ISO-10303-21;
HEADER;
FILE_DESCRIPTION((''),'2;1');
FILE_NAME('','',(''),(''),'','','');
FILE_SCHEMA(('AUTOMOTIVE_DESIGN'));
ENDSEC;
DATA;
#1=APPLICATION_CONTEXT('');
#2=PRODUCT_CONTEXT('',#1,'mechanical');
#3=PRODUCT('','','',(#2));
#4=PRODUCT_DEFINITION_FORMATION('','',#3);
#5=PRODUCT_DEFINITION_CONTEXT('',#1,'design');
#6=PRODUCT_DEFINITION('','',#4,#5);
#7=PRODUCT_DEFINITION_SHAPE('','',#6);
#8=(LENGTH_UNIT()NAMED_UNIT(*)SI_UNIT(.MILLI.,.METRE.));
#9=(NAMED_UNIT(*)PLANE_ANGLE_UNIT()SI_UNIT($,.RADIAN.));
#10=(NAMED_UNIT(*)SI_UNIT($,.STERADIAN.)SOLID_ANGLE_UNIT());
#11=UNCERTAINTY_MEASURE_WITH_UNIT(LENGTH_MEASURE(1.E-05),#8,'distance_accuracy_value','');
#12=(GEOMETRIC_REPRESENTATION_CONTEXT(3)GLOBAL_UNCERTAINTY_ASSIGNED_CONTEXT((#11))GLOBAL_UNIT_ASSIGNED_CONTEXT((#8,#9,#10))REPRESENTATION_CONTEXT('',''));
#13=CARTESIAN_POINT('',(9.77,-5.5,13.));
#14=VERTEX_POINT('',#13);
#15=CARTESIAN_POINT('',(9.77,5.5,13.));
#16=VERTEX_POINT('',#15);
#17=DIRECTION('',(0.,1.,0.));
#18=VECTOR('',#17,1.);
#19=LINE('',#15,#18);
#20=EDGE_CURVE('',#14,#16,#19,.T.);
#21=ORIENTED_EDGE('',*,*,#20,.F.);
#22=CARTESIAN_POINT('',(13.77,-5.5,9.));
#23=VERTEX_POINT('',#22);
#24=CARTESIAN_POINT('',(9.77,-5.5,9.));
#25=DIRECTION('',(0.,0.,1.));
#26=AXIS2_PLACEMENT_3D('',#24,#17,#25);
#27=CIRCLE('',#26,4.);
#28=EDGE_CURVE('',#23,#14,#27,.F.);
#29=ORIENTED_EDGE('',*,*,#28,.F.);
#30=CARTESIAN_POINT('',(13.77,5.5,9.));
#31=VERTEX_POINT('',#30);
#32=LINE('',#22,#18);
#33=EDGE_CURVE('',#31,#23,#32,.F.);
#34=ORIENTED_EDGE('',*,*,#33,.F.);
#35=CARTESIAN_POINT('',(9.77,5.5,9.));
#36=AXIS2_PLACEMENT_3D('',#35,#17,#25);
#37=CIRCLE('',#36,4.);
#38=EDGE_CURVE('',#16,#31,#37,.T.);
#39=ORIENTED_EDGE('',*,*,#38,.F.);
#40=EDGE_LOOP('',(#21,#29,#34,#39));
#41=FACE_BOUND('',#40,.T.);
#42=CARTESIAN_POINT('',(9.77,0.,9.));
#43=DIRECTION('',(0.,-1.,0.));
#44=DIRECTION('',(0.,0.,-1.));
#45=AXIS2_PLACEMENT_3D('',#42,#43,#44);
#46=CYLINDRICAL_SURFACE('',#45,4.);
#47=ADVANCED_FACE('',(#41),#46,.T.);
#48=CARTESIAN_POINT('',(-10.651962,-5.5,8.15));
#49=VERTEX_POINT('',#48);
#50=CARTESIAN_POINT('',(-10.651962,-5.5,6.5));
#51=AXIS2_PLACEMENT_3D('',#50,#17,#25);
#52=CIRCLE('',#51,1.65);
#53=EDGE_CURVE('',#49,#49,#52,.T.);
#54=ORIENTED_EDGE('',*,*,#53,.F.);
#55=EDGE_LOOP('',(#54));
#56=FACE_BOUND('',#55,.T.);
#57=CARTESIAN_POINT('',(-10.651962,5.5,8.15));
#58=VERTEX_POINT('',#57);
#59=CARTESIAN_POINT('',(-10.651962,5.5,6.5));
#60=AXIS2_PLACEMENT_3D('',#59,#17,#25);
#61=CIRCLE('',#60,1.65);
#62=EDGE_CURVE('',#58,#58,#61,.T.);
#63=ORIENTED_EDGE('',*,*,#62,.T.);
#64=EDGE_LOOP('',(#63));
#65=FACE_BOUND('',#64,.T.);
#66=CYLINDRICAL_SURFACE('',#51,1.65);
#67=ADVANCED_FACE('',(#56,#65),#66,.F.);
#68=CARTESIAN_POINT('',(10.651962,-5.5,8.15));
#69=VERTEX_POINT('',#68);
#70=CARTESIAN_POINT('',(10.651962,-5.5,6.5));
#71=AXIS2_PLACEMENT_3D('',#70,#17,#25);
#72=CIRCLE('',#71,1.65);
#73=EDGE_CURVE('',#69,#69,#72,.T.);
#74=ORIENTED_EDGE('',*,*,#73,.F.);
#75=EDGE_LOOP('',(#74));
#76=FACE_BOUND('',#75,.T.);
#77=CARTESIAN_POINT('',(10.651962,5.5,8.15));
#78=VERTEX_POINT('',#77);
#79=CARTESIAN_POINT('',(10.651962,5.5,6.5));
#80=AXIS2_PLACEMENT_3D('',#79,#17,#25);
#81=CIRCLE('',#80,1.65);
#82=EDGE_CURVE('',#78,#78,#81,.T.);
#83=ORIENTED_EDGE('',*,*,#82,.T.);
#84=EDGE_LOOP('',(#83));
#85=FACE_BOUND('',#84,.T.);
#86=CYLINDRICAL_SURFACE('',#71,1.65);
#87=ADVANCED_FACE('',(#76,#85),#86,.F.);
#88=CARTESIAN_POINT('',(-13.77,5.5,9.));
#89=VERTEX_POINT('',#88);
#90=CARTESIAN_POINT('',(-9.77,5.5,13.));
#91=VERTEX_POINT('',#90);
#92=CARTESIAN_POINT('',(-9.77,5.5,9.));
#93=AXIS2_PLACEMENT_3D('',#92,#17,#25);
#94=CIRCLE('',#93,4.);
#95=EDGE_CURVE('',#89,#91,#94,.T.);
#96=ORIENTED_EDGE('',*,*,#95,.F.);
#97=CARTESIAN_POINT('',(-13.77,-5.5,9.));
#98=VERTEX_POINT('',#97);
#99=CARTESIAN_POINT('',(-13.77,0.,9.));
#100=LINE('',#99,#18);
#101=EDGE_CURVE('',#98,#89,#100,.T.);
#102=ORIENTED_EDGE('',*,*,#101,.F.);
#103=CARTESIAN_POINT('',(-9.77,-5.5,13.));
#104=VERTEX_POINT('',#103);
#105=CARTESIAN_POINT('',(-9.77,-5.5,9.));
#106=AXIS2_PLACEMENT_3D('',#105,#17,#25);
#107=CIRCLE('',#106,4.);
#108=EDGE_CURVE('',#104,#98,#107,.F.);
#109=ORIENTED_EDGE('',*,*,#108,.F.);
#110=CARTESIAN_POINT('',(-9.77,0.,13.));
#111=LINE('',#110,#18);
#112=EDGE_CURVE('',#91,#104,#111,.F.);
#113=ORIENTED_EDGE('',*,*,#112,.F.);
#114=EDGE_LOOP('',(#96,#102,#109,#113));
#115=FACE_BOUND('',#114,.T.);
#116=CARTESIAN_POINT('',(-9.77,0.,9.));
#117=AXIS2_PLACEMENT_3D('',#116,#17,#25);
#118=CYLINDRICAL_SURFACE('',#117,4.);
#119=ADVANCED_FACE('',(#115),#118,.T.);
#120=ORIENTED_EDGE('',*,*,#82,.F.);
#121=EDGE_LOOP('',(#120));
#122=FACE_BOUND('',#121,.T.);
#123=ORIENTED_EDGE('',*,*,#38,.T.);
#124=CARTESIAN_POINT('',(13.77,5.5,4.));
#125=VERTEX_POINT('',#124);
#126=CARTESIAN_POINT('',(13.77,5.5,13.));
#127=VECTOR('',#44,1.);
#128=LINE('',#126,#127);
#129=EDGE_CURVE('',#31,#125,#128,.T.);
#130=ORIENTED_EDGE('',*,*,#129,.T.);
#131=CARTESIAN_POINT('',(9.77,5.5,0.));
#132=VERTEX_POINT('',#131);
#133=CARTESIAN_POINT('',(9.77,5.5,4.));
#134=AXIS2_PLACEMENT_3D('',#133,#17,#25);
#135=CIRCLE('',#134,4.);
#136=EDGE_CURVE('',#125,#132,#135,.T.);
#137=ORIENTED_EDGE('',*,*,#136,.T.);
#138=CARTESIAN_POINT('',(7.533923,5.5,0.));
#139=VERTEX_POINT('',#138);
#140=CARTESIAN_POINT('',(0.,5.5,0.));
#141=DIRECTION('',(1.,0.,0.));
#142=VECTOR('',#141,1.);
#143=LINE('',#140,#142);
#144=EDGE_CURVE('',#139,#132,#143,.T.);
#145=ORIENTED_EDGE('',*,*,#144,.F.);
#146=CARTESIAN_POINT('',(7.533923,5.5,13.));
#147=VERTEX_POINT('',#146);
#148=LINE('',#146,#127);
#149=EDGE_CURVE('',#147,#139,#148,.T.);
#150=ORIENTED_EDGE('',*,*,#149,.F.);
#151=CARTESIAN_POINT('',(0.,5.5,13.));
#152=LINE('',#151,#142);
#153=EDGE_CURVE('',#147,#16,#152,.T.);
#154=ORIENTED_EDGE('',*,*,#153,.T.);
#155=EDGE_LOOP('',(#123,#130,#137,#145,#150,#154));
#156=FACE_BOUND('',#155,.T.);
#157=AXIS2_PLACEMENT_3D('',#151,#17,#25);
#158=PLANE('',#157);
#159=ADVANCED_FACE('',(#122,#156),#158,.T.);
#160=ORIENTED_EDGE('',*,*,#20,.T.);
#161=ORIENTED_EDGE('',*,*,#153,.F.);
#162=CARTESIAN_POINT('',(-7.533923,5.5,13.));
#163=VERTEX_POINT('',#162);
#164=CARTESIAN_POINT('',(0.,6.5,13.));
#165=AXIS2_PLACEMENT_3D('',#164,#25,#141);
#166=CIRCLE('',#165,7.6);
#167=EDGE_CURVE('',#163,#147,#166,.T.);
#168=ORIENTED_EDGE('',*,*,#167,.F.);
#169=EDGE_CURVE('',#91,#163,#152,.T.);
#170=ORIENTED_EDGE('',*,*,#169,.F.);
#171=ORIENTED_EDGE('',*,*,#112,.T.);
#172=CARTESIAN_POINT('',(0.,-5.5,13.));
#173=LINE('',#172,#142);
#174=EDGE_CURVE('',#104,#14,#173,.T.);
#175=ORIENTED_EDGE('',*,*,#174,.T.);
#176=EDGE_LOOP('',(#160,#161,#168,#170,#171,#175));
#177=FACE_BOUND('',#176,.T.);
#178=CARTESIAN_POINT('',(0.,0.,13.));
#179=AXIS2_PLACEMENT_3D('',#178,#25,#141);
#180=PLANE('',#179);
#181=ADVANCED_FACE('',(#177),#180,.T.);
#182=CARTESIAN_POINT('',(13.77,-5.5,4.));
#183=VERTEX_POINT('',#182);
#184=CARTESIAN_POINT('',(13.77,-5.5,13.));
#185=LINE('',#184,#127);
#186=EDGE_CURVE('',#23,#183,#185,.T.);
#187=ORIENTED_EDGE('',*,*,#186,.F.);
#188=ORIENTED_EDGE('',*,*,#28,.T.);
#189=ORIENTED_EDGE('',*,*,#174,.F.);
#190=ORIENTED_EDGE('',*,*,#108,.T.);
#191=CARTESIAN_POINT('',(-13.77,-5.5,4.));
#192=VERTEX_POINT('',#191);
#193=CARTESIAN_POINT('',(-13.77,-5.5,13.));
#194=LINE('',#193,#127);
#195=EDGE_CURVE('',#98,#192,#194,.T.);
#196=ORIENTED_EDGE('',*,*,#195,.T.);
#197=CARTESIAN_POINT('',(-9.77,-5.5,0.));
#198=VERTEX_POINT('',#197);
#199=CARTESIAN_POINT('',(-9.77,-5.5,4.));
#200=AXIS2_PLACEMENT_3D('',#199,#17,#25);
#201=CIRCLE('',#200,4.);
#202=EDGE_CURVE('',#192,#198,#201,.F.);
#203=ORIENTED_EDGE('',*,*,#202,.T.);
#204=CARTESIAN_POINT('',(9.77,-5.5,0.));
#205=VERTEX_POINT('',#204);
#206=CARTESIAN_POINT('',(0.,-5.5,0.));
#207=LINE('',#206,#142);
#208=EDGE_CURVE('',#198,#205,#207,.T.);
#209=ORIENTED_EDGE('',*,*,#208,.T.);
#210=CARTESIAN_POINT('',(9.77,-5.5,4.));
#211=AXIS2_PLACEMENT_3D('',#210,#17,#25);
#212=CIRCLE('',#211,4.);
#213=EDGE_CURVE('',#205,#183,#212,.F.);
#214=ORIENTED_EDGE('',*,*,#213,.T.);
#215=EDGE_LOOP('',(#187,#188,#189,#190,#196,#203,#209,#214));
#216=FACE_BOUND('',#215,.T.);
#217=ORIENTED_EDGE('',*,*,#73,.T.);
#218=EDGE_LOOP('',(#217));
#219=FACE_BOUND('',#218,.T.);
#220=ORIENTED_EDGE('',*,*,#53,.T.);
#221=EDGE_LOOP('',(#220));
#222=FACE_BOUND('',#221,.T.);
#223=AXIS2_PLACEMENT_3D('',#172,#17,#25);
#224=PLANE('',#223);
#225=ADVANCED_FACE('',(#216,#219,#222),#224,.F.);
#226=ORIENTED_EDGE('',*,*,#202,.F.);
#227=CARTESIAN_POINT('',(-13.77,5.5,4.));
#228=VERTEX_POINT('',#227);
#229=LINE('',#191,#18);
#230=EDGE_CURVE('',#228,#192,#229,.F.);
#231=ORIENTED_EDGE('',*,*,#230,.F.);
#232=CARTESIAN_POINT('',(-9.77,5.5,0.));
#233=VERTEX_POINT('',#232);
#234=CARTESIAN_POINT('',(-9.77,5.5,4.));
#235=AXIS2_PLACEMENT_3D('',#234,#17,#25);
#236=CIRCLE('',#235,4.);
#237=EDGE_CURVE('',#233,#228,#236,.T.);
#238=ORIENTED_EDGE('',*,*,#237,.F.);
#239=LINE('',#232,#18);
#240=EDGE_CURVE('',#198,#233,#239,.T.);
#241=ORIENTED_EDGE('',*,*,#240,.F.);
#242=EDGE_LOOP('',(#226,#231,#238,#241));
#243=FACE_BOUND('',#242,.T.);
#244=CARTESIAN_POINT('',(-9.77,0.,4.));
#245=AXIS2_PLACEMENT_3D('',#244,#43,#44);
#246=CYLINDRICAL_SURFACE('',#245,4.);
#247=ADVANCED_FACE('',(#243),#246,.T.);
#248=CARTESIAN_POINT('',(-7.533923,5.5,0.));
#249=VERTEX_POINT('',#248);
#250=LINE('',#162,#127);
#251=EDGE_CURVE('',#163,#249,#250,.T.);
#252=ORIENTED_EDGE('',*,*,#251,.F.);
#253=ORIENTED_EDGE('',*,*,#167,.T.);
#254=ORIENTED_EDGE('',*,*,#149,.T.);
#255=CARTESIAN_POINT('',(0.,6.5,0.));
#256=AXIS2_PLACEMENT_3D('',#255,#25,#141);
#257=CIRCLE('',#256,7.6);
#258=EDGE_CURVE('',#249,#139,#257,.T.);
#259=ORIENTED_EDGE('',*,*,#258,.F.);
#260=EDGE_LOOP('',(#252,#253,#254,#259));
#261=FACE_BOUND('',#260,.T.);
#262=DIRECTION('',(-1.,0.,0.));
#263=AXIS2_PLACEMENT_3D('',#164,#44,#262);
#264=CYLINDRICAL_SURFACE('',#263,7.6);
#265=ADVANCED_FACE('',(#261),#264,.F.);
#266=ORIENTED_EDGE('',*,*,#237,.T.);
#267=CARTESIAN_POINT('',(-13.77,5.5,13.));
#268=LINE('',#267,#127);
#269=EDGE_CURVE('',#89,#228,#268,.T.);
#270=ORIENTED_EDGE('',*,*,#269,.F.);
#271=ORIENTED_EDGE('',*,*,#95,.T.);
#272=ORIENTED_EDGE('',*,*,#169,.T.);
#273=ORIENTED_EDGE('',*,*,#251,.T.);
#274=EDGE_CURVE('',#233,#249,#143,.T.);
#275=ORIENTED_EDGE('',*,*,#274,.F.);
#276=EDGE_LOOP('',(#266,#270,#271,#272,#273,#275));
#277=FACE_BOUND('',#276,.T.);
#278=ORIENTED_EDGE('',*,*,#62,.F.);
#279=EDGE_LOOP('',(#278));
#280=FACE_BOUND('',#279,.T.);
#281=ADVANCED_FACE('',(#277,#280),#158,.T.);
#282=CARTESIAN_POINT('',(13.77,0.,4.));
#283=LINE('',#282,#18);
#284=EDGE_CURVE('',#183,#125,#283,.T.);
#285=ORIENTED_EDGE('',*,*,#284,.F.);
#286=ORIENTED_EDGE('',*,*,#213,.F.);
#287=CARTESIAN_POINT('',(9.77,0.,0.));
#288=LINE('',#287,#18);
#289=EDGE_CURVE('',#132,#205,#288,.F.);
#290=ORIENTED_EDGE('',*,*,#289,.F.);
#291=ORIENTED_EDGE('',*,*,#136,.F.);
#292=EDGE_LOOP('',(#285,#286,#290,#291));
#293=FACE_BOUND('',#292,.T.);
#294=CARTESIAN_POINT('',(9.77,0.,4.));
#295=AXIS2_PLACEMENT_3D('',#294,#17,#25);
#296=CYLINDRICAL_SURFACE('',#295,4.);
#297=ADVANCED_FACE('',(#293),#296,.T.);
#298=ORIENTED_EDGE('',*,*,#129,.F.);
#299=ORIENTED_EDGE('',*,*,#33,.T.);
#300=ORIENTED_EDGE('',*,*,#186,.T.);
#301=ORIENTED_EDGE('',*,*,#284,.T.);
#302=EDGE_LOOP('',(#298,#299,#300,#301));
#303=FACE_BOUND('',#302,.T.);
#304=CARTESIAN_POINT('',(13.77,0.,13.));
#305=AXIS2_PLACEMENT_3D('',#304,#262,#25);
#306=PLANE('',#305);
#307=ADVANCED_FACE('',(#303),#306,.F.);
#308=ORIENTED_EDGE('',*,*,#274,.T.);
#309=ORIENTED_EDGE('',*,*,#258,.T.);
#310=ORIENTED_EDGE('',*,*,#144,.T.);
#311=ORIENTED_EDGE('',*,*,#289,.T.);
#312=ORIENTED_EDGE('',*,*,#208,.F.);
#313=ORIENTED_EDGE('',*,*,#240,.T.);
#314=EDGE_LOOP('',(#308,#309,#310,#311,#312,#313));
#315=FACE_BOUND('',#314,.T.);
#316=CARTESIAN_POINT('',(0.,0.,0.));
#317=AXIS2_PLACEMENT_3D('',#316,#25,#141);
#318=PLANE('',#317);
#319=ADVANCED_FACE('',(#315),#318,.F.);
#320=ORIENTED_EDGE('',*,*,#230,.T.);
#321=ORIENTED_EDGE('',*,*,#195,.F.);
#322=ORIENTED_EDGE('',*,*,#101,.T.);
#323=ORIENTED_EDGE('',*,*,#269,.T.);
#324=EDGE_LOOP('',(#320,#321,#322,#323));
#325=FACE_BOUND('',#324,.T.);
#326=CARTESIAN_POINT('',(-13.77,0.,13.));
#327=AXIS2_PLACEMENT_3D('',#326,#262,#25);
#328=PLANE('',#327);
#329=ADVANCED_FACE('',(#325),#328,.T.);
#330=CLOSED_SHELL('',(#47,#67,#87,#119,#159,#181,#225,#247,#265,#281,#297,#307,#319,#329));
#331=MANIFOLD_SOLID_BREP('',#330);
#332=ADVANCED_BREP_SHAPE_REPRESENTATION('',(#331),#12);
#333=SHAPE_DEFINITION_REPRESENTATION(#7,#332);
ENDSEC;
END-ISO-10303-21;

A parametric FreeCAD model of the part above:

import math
import FreeCAD as App
import Part
import Sketcher

V = App.Vector
Q = App.Units.Quantity


def edges_at(feature, points):
    """Names of the edges that pass closest to the given points."""
    edges = feature.Shape.Edges
    near = lambda p: min(range(len(edges)), key=lambda i: edges[i].distToShape(Part.Vertex(*p))[0])
    return sorted({f"Edge{near(p) + 1}" for p in points})

doc = App.newDocument("Part")
body = doc.addObject("PartDesign::Body", "Body")

# Sketch on XY plane
sketch1 = body.newObject("Sketcher::SketchObject", "Sketch")
sketch1.AttachmentSupport = (doc.getObject("XY_Plane"), [""])
sketch1.MapMode = "FlatFace"
sketch1.addGeometry([
    Part.LineSegment(V(-13.77, 5.5, 0), V(-13.77, -5.5, 0)),  # 0
    Part.LineSegment(V(-13.77, -5.5, 0), V(13.77, -5.5, 0)),  # 1
    Part.LineSegment(V(13.77, -5.5, 0), V(13.77, 5.5, 0)),  # 2
    Part.LineSegment(V(13.77, 5.5, 0), V(7.533923, 5.5, 0)),  # 3
    Part.ArcOfCircle(Part.Circle(V(0, 6.5, 0), V(0, 0, 1), 7.6), math.radians(-172.439157), math.radians(-7.560843)),  # 4
    Part.LineSegment(V(-7.533923, 5.5, 0), V(-13.77, 5.5, 0)),  # 5
], False)
sketch1.addConstraint([
    Sketcher.Constraint("Coincident", 0, 2, 1, 1),
    Sketcher.Constraint("Coincident", 1, 2, 2, 1),
    Sketcher.Constraint("Coincident", 2, 2, 3, 1),
    Sketcher.Constraint("Coincident", 3, 2, 4, 2),
    Sketcher.Constraint("Coincident", 4, 1, 5, 1),
    Sketcher.Constraint("Coincident", 5, 2, 0, 1),
    Sketcher.Constraint("Vertical", 0),
    Sketcher.Constraint("Horizontal", 1),
    Sketcher.Constraint("Vertical", 2),
    Sketcher.Constraint("Horizontal", 3),
    Sketcher.Constraint("Horizontal", 5),
    Sketcher.Constraint("Symmetric", 0, 2, 2, 2, -1, 1),
    Sketcher.Constraint("Symmetric", 3, 2, 4, 1, -2),
    Sketcher.Constraint("Radius", 4, Q("7.6 mm")),
    Sketcher.Constraint("DistanceY", 0, 2, 0, 1, Q("11 mm")),
    Sketcher.Constraint("DistanceY", 0, 2, 4, 3, Q("12 mm")),
    Sketcher.Constraint("DistanceX", 1, 1, 1, 2, Q("27.54 mm")),
])
pad1 = body.newObject("PartDesign::Pad", "Pad")
pad1.Profile = sketch1
pad1.Length = 13

# Sketch on XZ plane
sketch2 = body.newObject("Sketcher::SketchObject", "Sketch001")
sketch2.AttachmentSupport = (doc.getObject("XZ_Plane"), [""])
sketch2.MapMode = "FlatFace"
sketch2.AttachmentOffset = App.Placement(V(0, 0, -5.5), App.Rotation())
sketch2.addGeometry([
    Part.Circle(V(-10.651962, 6.5, 0), V(0, 0, 1), 1.65),
    Part.Circle(V(10.651962, 6.5, 0), V(0, 0, 1), 1.65),
], False)
sketch2.addConstraint([
    Sketcher.Constraint("Equal", 0, 1),
    Sketcher.Constraint("Symmetric", 0, 3, 1, 3, -2),
    Sketcher.Constraint("Diameter", 0, Q("3.3 mm")),
    Sketcher.Constraint("DistanceY", -1, 1, 0, 3, Q("6.5 mm")),
    Sketcher.Constraint("DistanceX", 0, 3, -1, 1, Q("10.651962 mm")),
])
pocket1 = body.newObject("PartDesign::Pocket", "Pocket")
pocket1.Profile = sketch2
pocket1.Type = "ThroughAll"
pocket1.Reversed = True
doc.recompute()

fillet = body.newObject("PartDesign::Fillet", "Fillet")
fillet.Base = (pocket1, edges_at(pocket1, [
    (-13.77, 0, 13),
    (13.77, 0, 13),
    (13.77, 0, 0),
    (-13.77, 0, 0),
]))
fillet.Radius = 4

doc.recompute()
